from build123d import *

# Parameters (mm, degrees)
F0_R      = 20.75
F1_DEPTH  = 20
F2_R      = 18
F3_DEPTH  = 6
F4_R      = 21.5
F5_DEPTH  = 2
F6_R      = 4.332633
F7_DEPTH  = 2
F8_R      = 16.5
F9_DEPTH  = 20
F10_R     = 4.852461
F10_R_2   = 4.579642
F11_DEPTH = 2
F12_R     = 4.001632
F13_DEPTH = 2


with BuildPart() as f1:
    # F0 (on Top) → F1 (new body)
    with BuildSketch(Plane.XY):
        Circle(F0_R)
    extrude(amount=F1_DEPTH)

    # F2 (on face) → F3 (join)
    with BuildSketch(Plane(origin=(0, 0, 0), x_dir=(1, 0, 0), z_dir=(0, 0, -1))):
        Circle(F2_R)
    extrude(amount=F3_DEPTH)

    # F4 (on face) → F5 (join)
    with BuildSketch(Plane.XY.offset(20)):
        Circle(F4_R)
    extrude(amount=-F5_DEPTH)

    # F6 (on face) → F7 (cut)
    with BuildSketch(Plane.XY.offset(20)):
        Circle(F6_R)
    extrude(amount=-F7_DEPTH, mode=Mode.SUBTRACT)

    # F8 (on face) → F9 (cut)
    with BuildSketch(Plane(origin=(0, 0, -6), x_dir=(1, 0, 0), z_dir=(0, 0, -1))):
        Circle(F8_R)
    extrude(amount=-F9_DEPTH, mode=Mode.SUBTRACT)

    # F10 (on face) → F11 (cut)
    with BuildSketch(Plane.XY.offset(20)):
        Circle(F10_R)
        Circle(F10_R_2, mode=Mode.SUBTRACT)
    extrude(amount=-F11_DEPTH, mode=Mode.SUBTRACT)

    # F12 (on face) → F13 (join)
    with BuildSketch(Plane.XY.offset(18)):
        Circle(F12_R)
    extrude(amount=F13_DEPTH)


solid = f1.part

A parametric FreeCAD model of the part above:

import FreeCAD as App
import Part
import Sketcher

doc = App.newDocument("Part")
body = doc.addObject("PartDesign::Body", "Body")

sketch1 = body.newObject("Sketcher::SketchObject", "Sketch")
sketch1.AttachmentSupport = (doc.getObject("XY_Plane"), [""])
sketch1.MapMode = "FlatFace"
sketch1.addGeometry(Part.Circle(App.Vector(0, 0, 0), App.Vector(0, 0, 1), 21), False)
sketch1.addConstraint([
    Sketcher.Constraint("Coincident", 0, 3, -1, 1),
    Sketcher.Constraint("Diameter", 0, 41.5),
])
pad1 = body.newObject("PartDesign::Pad", "Pad")
pad1.Profile = sketch1
pad1.Length = 20

sketch2 = body.newObject("Sketcher::SketchObject", "Sketch001")
sketch2.AttachmentSupport = (doc.getObject("XY_Plane"), [""])
sketch2.MapMode = "FlatFace"
sketch2.addGeometry(Part.Circle(App.Vector(0, 0, 0), App.Vector(0, 0, 1), 18), False)
sketch2.addConstraint([
    Sketcher.Constraint("Coincident", 0, 3, -1, 1),
    Sketcher.Constraint("Diameter", 0, 36.0),
])
pad2 = body.newObject("PartDesign::Pad", "Pad001")
pad2.Profile = sketch2
pad2.Length = 6
pad2.Reversed = True

sketch3 = body.newObject("Sketcher::SketchObject", "Sketch002")
sketch3.AttachmentSupport = (doc.getObject("XY_Plane"), [""])
sketch3.MapMode = "FlatFace"
sketch3.AttachmentOffset = App.Placement(App.Vector(0, 0, 20), App.Rotation())
sketch3.addGeometry(Part.Circle(App.Vector(0, 0, 0), App.Vector(0, 0, 1), 22), False)
sketch3.addConstraint([
    Sketcher.Constraint("Coincident", 0, 3, -1, 1),
    Sketcher.Constraint("Diameter", 0, 43.0),
])
pad3 = body.newObject("PartDesign::Pad", "Pad002")
pad3.Profile = sketch3
pad3.Length = 2
pad3.Reversed = True

sketch4 = body.newObject("Sketcher::SketchObject", "Sketch003")
sketch4.AttachmentSupport = (doc.getObject("XY_Plane"), [""])
sketch4.MapMode = "FlatFace"
sketch4.AttachmentOffset = App.Placement(App.Vector(0, 0, 20), App.Rotation())
sketch4.addGeometry(Part.Circle(App.Vector(0, 0, 0), App.Vector(0, 0, 1), 4.3), False)
sketch4.addConstraint([
    Sketcher.Constraint("Coincident", 0, 3, -1, 1),
    Sketcher.Constraint("Diameter", 0, 8.665266),
])
pocket1 = body.newObject("PartDesign::Pocket", "Pocket")
pocket1.Profile = sketch4
pocket1.Length = 2

sketch5 = body.newObject("Sketcher::SketchObject", "Sketch004")
sketch5.AttachmentSupport = (doc.getObject("XY_Plane"), [""])
sketch5.MapMode = "FlatFace"
sketch5.AttachmentOffset = App.Placement(App.Vector(0, 0, -6), App.Rotation())
sketch5.addGeometry(Part.Circle(App.Vector(0, 0, 0), App.Vector(0, 0, 1), 16), False)
sketch5.addConstraint([
    Sketcher.Constraint("Coincident", 0, 3, -1, 1),
    Sketcher.Constraint("Diameter", 0, 33.0),
])
pocket2 = body.newObject("PartDesign::Pocket", "Pocket001")
pocket2.Profile = sketch5
pocket2.Length = 20
pocket2.Reversed = True

sketch6 = body.newObject("Sketcher::SketchObject", "Sketch005")
sketch6.AttachmentSupport = (doc.getObject("XY_Plane"), [""])
sketch6.MapMode = "FlatFace"
sketch6.AttachmentOffset = App.Placement(App.Vector(0, 0, 20), App.Rotation())
sketch6.addGeometry([
    Part.Circle(App.Vector(0, 0, 0), App.Vector(0, 0, 1), 4.9),
    Part.Circle(App.Vector(0, 0, 0), App.Vector(0, 0, 1), 4.6),
], False)
sketch6.addConstraint([
    Sketcher.Constraint("Coincident", 0, 3, -1, 1),
    Sketcher.Constraint("Coincident", 1, 3, -1, 1),
    Sketcher.Constraint("Diameter", 0, 9.704922),
    Sketcher.Constraint("Diameter", 1, 9.159284),
])
pocket3 = body.newObject("PartDesign::Pocket", "Pocket002")
pocket3.Profile = sketch6
pocket3.Length = 2

sketch7 = body.newObject("Sketcher::SketchObject", "Sketch006")
sketch7.AttachmentSupport = (doc.getObject("XY_Plane"), [""])
sketch7.MapMode = "FlatFace"
sketch7.AttachmentOffset = App.Placement(App.Vector(0, 0, 18), App.Rotation())
sketch7.addGeometry(Part.Circle(App.Vector(0, 0, 0), App.Vector(0, 0, 1), 4), False)
sketch7.addConstraint([
    Sketcher.Constraint("Coincident", 0, 3, -1, 1),
    Sketcher.Constraint("Diameter", 0, 8.003264),
])
pad4 = body.newObject("PartDesign::Pad", "Pad003")
pad4.Profile = sketch7
pad4.Length = 2

doc.recompute()
